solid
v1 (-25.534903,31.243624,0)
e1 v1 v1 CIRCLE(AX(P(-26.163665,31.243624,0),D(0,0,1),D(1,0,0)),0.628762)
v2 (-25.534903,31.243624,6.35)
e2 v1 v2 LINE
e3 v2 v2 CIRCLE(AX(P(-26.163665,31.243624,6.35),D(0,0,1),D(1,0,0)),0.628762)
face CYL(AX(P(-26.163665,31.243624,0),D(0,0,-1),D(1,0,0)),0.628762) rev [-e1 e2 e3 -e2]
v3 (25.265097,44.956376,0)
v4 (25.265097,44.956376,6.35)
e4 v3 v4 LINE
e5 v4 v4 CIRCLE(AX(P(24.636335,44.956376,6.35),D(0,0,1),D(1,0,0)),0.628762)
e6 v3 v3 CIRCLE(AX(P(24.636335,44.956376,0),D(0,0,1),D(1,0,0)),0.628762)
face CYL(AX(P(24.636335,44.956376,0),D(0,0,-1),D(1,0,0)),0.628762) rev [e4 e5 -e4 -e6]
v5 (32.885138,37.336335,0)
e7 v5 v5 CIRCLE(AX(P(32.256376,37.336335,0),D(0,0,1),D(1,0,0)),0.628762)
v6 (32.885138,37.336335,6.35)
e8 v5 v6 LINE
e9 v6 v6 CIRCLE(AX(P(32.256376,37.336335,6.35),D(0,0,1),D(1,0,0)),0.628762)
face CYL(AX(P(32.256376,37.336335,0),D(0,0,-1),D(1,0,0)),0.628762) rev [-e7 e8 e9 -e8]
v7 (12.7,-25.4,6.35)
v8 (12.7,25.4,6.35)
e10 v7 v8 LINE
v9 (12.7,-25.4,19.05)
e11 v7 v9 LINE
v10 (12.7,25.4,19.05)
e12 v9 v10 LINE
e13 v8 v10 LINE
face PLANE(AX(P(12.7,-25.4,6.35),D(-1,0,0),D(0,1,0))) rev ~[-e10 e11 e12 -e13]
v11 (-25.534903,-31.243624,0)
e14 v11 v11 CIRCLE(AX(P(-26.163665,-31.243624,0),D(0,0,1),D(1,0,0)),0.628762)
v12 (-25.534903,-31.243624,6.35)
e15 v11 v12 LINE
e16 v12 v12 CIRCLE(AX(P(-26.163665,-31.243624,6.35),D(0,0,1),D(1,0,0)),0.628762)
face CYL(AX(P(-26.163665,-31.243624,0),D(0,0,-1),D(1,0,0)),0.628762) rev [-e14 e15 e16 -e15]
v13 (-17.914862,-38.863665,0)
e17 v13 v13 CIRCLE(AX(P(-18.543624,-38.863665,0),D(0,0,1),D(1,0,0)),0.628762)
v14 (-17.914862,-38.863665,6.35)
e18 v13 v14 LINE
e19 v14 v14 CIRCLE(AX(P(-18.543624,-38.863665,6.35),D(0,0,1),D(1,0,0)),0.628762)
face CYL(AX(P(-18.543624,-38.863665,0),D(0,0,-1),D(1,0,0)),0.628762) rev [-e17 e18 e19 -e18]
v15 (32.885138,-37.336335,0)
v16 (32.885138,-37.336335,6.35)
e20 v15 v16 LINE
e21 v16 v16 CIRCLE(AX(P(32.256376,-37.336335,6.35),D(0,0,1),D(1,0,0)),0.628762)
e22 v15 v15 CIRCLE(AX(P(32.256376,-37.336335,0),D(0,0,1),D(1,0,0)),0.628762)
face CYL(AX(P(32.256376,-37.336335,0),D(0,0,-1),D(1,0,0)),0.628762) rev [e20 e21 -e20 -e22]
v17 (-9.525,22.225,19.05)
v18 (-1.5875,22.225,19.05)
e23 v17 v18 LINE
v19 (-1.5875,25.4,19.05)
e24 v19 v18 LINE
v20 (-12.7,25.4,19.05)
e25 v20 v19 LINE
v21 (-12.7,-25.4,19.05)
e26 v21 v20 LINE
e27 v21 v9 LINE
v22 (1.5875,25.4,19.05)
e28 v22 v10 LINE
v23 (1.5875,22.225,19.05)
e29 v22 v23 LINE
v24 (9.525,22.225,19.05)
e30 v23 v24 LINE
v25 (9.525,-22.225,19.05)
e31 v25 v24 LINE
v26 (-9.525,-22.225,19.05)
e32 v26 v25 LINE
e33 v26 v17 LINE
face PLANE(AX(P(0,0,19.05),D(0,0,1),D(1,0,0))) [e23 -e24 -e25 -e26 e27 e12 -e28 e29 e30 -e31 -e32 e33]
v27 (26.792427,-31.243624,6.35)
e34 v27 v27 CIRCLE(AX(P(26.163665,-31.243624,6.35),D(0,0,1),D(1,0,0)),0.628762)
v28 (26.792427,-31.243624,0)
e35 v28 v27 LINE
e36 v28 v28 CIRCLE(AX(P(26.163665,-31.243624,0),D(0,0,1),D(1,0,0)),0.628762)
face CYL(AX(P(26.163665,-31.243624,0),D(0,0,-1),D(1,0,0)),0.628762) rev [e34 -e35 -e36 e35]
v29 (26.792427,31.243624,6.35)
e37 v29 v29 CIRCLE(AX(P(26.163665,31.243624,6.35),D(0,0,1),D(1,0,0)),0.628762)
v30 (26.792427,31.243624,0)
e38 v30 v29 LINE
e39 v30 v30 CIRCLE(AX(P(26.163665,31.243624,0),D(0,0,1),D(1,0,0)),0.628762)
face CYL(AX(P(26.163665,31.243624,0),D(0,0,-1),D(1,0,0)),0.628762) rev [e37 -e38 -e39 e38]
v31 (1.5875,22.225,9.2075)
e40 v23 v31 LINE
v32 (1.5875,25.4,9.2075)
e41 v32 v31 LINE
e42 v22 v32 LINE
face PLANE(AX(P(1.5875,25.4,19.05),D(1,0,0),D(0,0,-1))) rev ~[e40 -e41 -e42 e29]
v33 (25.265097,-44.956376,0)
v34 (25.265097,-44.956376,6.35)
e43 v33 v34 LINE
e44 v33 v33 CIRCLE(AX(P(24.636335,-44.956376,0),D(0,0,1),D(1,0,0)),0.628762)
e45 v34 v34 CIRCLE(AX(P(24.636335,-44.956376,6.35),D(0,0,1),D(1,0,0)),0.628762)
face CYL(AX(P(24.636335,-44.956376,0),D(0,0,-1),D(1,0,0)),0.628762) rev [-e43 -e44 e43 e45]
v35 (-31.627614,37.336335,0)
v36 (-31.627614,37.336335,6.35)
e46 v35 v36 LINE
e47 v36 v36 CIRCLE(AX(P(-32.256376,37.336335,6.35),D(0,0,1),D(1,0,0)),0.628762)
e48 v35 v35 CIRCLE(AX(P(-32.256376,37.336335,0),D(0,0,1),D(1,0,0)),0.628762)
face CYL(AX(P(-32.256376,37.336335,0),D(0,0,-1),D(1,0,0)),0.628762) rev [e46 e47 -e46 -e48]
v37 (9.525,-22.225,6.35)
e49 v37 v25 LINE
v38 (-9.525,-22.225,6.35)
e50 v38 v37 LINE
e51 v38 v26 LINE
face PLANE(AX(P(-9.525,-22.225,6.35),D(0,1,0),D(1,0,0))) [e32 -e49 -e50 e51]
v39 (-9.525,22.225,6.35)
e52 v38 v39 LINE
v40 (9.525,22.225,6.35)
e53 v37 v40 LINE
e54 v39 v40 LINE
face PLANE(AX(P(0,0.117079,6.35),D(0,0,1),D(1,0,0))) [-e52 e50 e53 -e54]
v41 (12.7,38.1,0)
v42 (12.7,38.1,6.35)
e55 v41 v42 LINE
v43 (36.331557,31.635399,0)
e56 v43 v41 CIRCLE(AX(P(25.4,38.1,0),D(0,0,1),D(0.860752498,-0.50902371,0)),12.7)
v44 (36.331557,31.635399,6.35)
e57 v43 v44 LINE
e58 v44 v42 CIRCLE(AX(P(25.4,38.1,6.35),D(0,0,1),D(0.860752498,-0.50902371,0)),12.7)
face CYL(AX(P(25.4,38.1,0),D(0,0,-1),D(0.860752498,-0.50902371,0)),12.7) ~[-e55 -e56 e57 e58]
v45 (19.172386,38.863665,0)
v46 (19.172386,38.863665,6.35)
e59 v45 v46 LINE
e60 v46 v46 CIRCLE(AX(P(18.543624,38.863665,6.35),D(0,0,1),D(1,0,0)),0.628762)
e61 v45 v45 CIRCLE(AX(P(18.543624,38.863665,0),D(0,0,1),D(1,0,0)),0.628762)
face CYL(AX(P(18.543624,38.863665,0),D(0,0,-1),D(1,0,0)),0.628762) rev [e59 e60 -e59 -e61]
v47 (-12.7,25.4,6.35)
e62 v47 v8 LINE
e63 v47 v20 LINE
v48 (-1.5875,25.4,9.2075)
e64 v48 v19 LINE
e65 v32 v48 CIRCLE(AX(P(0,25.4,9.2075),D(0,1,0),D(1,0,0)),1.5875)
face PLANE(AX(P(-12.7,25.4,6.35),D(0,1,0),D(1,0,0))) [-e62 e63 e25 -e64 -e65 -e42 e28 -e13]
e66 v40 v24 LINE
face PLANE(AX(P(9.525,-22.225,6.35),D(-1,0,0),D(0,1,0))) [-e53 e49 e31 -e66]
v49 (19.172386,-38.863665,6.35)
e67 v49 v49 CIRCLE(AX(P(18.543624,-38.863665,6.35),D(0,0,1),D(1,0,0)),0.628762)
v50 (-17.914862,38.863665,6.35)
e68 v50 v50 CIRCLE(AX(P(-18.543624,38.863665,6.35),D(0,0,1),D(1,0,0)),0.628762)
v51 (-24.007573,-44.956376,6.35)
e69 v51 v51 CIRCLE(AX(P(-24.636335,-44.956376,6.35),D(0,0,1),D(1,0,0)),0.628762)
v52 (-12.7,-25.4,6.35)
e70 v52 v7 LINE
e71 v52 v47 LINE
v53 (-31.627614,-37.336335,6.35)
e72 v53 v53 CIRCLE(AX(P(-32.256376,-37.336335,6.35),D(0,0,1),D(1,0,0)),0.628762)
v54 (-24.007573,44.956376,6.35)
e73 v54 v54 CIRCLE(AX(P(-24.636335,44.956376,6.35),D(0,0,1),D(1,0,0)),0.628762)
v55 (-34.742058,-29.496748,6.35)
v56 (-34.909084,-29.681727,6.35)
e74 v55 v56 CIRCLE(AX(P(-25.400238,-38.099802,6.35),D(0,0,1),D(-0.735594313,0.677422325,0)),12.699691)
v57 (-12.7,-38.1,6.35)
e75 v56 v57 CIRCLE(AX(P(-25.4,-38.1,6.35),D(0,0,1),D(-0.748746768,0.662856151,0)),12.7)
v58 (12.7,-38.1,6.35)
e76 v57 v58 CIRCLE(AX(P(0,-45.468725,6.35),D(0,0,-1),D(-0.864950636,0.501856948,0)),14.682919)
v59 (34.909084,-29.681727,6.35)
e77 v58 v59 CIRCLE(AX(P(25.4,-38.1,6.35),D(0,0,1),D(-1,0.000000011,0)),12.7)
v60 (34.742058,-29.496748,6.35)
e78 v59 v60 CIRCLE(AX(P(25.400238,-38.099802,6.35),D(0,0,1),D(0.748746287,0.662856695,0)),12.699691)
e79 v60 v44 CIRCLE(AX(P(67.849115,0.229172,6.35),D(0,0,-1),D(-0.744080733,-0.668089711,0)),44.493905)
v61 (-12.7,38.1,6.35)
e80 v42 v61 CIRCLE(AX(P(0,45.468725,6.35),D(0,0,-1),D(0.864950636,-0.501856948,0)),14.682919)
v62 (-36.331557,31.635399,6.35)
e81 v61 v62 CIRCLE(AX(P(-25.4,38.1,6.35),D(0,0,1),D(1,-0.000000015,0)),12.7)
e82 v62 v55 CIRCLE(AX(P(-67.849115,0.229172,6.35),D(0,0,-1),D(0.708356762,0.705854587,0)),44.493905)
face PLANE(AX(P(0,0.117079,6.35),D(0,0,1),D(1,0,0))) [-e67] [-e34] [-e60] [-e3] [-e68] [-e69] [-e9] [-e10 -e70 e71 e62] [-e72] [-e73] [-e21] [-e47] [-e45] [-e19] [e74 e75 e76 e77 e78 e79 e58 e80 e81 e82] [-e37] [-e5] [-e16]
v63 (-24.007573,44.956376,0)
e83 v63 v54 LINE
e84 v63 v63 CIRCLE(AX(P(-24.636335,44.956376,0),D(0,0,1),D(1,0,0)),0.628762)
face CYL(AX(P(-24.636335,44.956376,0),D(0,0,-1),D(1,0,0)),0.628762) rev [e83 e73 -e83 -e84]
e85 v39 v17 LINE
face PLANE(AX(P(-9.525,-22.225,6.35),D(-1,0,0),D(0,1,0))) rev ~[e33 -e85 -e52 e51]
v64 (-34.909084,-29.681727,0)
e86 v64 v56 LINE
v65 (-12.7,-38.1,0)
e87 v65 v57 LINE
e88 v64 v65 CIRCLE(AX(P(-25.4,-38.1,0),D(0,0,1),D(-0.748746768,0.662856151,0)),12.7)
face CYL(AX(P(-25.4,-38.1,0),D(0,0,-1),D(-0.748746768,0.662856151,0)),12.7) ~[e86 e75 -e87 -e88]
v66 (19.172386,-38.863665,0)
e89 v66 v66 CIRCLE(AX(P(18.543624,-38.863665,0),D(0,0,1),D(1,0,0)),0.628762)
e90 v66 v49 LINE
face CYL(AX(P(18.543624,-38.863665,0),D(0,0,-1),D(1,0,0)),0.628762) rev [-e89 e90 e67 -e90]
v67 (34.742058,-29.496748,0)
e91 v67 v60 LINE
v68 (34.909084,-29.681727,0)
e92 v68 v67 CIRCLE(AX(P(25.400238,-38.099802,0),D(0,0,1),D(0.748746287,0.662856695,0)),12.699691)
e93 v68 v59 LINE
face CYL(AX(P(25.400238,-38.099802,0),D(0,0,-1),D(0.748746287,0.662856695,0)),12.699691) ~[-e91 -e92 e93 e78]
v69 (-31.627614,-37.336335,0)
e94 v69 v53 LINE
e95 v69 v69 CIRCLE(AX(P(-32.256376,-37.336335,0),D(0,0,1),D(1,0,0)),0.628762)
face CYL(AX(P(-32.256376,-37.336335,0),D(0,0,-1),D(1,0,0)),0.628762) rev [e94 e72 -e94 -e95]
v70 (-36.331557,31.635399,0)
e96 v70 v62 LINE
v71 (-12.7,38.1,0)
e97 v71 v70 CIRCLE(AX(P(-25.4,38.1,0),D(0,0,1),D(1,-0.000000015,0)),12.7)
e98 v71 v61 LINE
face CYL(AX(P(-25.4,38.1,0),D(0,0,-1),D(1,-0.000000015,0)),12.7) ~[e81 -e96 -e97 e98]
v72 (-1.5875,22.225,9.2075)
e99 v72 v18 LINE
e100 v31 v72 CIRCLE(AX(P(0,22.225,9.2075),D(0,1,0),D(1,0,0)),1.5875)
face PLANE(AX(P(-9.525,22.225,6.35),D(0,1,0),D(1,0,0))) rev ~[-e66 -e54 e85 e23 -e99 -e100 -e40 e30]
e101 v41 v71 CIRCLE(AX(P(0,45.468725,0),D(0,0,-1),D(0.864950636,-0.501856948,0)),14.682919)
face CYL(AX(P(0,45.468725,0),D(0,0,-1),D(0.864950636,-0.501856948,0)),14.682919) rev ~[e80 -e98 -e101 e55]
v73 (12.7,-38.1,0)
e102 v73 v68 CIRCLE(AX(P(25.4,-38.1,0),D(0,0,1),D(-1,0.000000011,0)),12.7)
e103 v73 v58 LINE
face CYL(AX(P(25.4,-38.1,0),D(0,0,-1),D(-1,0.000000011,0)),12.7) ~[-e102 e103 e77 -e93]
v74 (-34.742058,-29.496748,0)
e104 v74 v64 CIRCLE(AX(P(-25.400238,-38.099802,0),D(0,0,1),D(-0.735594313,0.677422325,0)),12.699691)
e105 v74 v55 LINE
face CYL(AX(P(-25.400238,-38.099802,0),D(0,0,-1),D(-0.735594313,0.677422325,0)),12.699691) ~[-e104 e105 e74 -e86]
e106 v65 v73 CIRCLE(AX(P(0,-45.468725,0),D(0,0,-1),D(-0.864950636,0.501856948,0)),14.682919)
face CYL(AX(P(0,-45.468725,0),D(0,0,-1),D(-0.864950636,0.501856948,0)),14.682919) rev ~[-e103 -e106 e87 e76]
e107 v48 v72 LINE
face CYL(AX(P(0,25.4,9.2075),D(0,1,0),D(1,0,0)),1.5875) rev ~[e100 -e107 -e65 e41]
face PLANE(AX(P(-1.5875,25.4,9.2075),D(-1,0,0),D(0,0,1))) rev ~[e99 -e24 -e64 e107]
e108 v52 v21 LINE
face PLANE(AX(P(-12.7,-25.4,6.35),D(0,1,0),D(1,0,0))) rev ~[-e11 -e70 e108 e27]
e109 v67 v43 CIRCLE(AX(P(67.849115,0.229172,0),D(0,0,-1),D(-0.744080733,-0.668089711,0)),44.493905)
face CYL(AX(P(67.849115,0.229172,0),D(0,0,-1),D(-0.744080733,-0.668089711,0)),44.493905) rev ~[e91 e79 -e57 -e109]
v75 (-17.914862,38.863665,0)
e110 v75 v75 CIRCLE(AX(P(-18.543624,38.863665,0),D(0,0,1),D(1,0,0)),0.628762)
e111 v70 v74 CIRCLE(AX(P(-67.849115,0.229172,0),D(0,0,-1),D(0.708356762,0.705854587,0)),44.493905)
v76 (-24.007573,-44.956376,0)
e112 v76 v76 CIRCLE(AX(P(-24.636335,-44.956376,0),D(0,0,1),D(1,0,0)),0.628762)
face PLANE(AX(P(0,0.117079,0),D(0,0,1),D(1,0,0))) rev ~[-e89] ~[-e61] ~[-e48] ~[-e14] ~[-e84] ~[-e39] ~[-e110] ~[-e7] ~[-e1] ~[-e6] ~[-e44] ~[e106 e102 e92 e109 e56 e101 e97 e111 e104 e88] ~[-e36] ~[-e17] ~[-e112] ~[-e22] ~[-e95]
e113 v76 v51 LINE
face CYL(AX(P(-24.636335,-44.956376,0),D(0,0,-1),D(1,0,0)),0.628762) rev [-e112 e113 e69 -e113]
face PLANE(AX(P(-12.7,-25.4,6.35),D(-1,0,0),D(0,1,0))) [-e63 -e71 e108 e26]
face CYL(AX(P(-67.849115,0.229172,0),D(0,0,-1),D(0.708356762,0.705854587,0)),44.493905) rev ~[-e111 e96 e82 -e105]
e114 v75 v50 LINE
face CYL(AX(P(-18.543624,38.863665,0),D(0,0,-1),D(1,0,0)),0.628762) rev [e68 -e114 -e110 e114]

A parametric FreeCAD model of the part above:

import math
import FreeCAD as App
import Part
import Sketcher

V = App.Vector
Q = App.Units.Quantity


def add_polygon(sketch, points):
    """Adds a closed chain of lines whose ends are joined by coincident constraints."""
    first, n = sketch.GeometryCount, len(points)
    for a, b in zip(points, points[1:] + points[:1]):
        sketch.addGeometry(Part.LineSegment(App.Vector(*a, 0), App.Vector(*b, 0)), False)
    for i in range(n):
        sketch.addConstraint(Sketcher.Constraint("Coincident", first + i, 2, first + (i + 1) % n, 1))

doc = App.newDocument("Part")
body = doc.addObject("PartDesign::Body", "Body")

sketch1 = body.newObject("Sketcher::SketchObject", "Sketch")
sketch1.AttachmentSupport = (doc.getObject("XY_Plane"), [""])
sketch1.MapMode = "FlatFace"
sketch1.addGeometry([
    Part.ArcOfCircle(Part.Circle(V(0, 45.47, 0), V(0, 0, 1), 14.68), math.radians(-150), math.radians(-30)),
    Part.ArcOfCircle(Part.Circle(V(-25.4, 38.1, 0), V(0, 0, 1), 12.7), math.radians(0), math.radians(211)),
    Part.ArcOfCircle(Part.Circle(V(-67.85, 0.23, 0), V(0, 0, 1), 44.49), math.radians(-42), math.radians(45)),
    Part.ArcOfCircle(Part.Circle(V(-25.4, -38.1, 0), V(0, 0, 1), 12.7), math.radians(137.36), math.radians(138.48)),
    Part.ArcOfCircle(Part.Circle(V(-25.4, -38.1, 0), V(0, 0, 1), 12.7), math.radians(138), math.radians(360)),
    Part.ArcOfCircle(Part.Circle(V(0, -45.47, 0), V(0, 0, 1), 14.68), math.radians(30), math.radians(150)),
    Part.ArcOfCircle(Part.Circle(V(25.4, -38.1, 0), V(0, 0, 1), 12.7), math.radians(180), math.radians(402)),
    Part.ArcOfCircle(Part.Circle(V(25.4, -38.1, 0), V(0, 0, 1), 12.7), math.radians(41.52), math.radians(42.64)),
    Part.ArcOfCircle(Part.Circle(V(67.85, 0.23, 0), V(0, 0, 1), 44.49), math.radians(135), math.radians(222)),
    Part.ArcOfCircle(Part.Circle(V(25.4, 38.1, 0), V(0, 0, 1), 12.7), math.radians(-31), math.radians(180)),
    Part.Circle(V(-32.26, -37.34, 0), V(0, 0, 1), 0.63),
    Part.Circle(V(-24.64, -44.96, 0), V(0, 0, 1), 0.63),
    Part.Circle(V(-18.54, -38.86, 0), V(0, 0, 1), 0.63),
    Part.Circle(V(-26.16, -31.24, 0), V(0, 0, 1), 0.63),
    Part.Circle(V(24.64, -44.96, 0), V(0, 0, 1), 0.63),
    Part.Circle(V(18.54, -38.86, 0), V(0, 0, 1), 0.63),
    Part.Circle(V(32.26, -37.34, 0), V(0, 0, 1), 0.63),
    Part.Circle(V(26.16, -31.24, 0), V(0, 0, 1), 0.63),
    Part.Circle(V(-26.16, 31.24, 0), V(0, 0, 1), 0.63),
    Part.Circle(V(-32.26, 37.34, 0), V(0, 0, 1), 0.63),
    Part.Circle(V(-18.54, 38.86, 0), V(0, 0, 1), 0.63),
    Part.Circle(V(-24.64, 44.96, 0), V(0, 0, 1), 0.63),
    Part.Circle(V(26.16, 31.24, 0), V(0, 0, 1), 0.63),
    Part.Circle(V(18.54, 38.86, 0), V(0, 0, 1), 0.63),
    Part.Circle(V(24.64, 44.96, 0), V(0, 0, 1), 0.63),
    Part.Circle(V(32.26, 37.34, 0), V(0, 0, 1), 0.63),
], False)
sketch1.addConstraint([
    Sketcher.Constraint("Coincident", 0, 1, 1, 1),
    Sketcher.Constraint("Coincident", 1, 2, 2, 2),
    Sketcher.Constraint("Coincident", 2, 1, 3, 1),
    Sketcher.Constraint("Tangent", 3, 2, 4, 1),
    Sketcher.Constraint("Coincident", 4, 2, 5, 2),
    Sketcher.Constraint("Coincident", 5, 1, 6, 1),
    Sketcher.Constraint("Tangent", 6, 2, 7, 1),
    Sketcher.Constraint("Coincident", 7, 2, 8, 2),
    Sketcher.Constraint("Coincident", 8, 1, 9, 1),
    Sketcher.Constraint("Coincident", 9, 2, 0, 2),
    Sketcher.Constraint("Equal", 1, 4),
    Sketcher.Constraint("Equal", 0, 5),
    Sketcher.Constraint("Equal", 4, 6),
    Sketcher.Constraint("Equal", 3, 7),
    Sketcher.Constraint("Equal", 2, 8),
    Sketcher.Constraint("Equal", 6, 9),
    Sketcher.Constraint("Equal", 10, 11),
    Sketcher.Constraint("Equal", 11, 12),
    Sketcher.Constraint("Equal", 12, 13),
    Sketcher.Constraint("Equal", 13, 14),
    Sketcher.Constraint("Equal", 14, 15),
    Sketcher.Constraint("Equal", 15, 16),
    Sketcher.Constraint("Equal", 16, 17),
    Sketcher.Constraint("Equal", 17, 18),
    Sketcher.Constraint("Equal", 18, 19),
    Sketcher.Constraint("Equal", 19, 20),
    Sketcher.Constraint("Equal", 20, 21),
    Sketcher.Constraint("Equal", 21, 22),
    Sketcher.Constraint("Equal", 22, 23),
    Sketcher.Constraint("Equal", 23, 24),
    Sketcher.Constraint("Equal", 24, 25),
    Sketcher.Constraint("Symmetric", 0, 3, 5, 3, -1, 1),
    Sketcher.Constraint("Symmetric", 1, 3, 6, 3, -1, 1),
    Sketcher.Constraint("Symmetric", 4, 3, 9, 3, -1, 1),
    Sketcher.Constraint("Symmetric", 17, 3, 18, 3, -1, 1),
    Sketcher.Constraint("Symmetric", 16, 3, 19, 3, -1, 1),
    Sketcher.Constraint("Symmetric", 15, 3, 20, 3, -1, 1),
    Sketcher.Constraint("Symmetric", 14, 3, 21, 3, -1, 1),
    Sketcher.Constraint("Symmetric", 13, 3, 22, 3, -1, 1),
    Sketcher.Constraint("Symmetric", 12, 3, 23, 3, -1, 1),
    Sketcher.Constraint("Symmetric", 11, 3, 24, 3, -1, 1),
    Sketcher.Constraint("Symmetric", 10, 3, 25, 3, -1, 1),
    Sketcher.Constraint("Symmetric", 4, 3, 6, 3, -2),
    Sketcher.Constraint("Symmetric", 2, 3, 8, 3, -2),
    Sketcher.Constraint("Symmetric", 11, 3, 14, 3, -2),
    Sketcher.Constraint("Symmetric", 12, 3, 15, 3, -2),
    Sketcher.Constraint("Symmetric", 10, 3, 16, 3, -2),
    Sketcher.Constraint("Symmetric", 13, 3, 17, 3, -2),
    Sketcher.Constraint("PointOnObject", 0, 3, -2),
    Sketcher.Constraint("Horizontal", 9, 3, 0, 1),
    Sketcher.Constraint("Horizontal", 3, 2, 6, 2),
    Sketcher.Constraint("Radius", 1, Q("0.5 in")),
    Sketcher.Constraint("DistanceX", 1, 3, -1, 1, Q("1 in")),
    Sketcher.Constraint("DistanceY", 4, 3, 1, 3, Q("3 in")),
    Sketcher.Constraint("Radius", 0, Q("14.682919 mm")),
    Sketcher.Constraint("Radius", 3, Q("12.699691 mm")),
    Sketcher.Constraint("Diameter", 10, Q("1.257524 mm")),
    Sketcher.Constraint("Radius", 2, Q("44.493905 mm")),
    Sketcher.Constraint("DistanceY", -1, 1, 1, 2, Q("31.635399 mm")),
    Sketcher.Constraint("DistanceY", 18, 3, 0, 3, Q("14.225101 mm")),
    Sketcher.Constraint("DistanceY", 2, 1, -1, 1, Q("29.496748 mm")),
    Sketcher.Constraint("DistanceX", 10, 3, 3, 3, Q("6.856138 mm")),
    Sketcher.Constraint("DistanceY", 5, 3, 10, 3, Q("8.13239 mm")),
    Sketcher.Constraint("DistanceX", 10, 3, 11, 3, Q("7.620041 mm")),
    Sketcher.Constraint("DistanceY", 11, 3, 10, 3, Q("7.620041 mm")),
    Sketcher.Constraint("DistanceX", 11, 3, 12, 3, Q("6.092711 mm")),
    Sketcher.Constraint("DistanceY", 11, 3, 12, 3, Q("6.092711 mm")),
    Sketcher.Constraint("DistanceX", 10, 3, 13, 3, Q("6.092711 mm")),
    Sketcher.Constraint("DistanceY", 3, 2, 2, 1, Q("0.184979 mm")),
])
pad1 = body.newObject("PartDesign::Pad", "Pad")
pad1.Profile = sketch1
pad1.Length = Q("0.25 in")

sketch2 = body.newObject("Sketcher::SketchObject", "Sketch001")
sketch2.AttachmentSupport = (doc.getObject("XY_Plane"), [""])
sketch2.MapMode = "FlatFace"
sketch2.AttachmentOffset = App.Placement(V(0, 0, 0.25 * 25.4), App.Rotation())
add_polygon(sketch2, [(-13, 25), (-13, -25), (13, -25), (13, 25)])
add_polygon(sketch2, [(10, -22), (-10, -22), (-10, 22), (10, 22)])
sketch2.addConstraint([
    Sketcher.Constraint("Vertical", 0),
    Sketcher.Constraint("Horizontal", 1),
    Sketcher.Constraint("Vertical", 2),
    Sketcher.Constraint("Horizontal", 3),
    Sketcher.Constraint("Horizontal", 4),
    Sketcher.Constraint("Vertical", 5),
    Sketcher.Constraint("Horizontal", 6),
    Sketcher.Constraint("Vertical", 7),
    Sketcher.Constraint("Symmetric", 0, 2, 2, 2, -1, 1),
    Sketcher.Constraint("Symmetric", 4, 2, 6, 2, -1, 1),
    Sketcher.Constraint("DistanceX", 1, 1, 1, 2, Q("1 in")),
    Sketcher.Constraint("DistanceY", 0, 2, 0, 1, Q("2 in")),
    Sketcher.Constraint("DistanceX", 4, 2, 4, 1, Q("0.75 in")),
    Sketcher.Constraint("DistanceY", 5, 1, 5, 2, Q("1.75 in")),
])
pad2 = body.newObject("PartDesign::Pad", "Pad001")
pad2.Profile = sketch2
pad2.Length = Q("0.5 in")

sketch3 = body.newObject("Sketcher::SketchObject", "Sketch002")
sketch3.AttachmentSupport = (doc.getObject("XZ_Plane"), [""])
sketch3.MapMode = "FlatFace"
sketch3.AttachmentOffset = App.Placement(V(0, 0, -1 * 25.4), App.Rotation())
sketch3.addGeometry([
    Part.LineSegment(V(-1.6, 19.1, 0), V(1.6, 19.1, 0)),
    Part.LineSegment(V(1.6, 19.1, 0), V(1.6, 9.2, 0)),
    Part.ArcOfCircle(Part.Circle(V(0, 9.2, 0), V(0, 0, 1), 1.6), math.radians(180), math.radians(360)),
    Part.LineSegment(V(-1.6, 9.2, 0), V(-1.6, 19.1, 0)),
], False)
sketch3.addConstraint([
    Sketcher.Constraint("Coincident", 0, 2, 1, 1),
    Sketcher.Constraint("Tangent", 1, 2, 2, 2),
    Sketcher.Constraint("Tangent", 2, 1, 3, 1),
    Sketcher.Constraint("Coincident", 3, 2, 0, 1),
    Sketcher.Constraint("Horizontal", 0),
    Sketcher.Constraint("Vertical", 1),
    Sketcher.Constraint("Vertical", 3),
    Sketcher.Constraint("PointOnObject", 2, 3, -2),
    Sketcher.Constraint("Radius", 2, Q("0.0625 in")),
    Sketcher.Constraint("DistanceY", -1, 1, 0, 2, Q("0.75 in")),
    Sketcher.Constraint("DistanceY", 1, 2, 1, 1, Q("0.3875 in")),
])
pocket1 = body.newObject("PartDesign::Pocket", "Pocket")
pocket1.Profile = sketch3
pocket1.Length = Q("1 in")
pocket1.Reversed = True

doc.recompute()
